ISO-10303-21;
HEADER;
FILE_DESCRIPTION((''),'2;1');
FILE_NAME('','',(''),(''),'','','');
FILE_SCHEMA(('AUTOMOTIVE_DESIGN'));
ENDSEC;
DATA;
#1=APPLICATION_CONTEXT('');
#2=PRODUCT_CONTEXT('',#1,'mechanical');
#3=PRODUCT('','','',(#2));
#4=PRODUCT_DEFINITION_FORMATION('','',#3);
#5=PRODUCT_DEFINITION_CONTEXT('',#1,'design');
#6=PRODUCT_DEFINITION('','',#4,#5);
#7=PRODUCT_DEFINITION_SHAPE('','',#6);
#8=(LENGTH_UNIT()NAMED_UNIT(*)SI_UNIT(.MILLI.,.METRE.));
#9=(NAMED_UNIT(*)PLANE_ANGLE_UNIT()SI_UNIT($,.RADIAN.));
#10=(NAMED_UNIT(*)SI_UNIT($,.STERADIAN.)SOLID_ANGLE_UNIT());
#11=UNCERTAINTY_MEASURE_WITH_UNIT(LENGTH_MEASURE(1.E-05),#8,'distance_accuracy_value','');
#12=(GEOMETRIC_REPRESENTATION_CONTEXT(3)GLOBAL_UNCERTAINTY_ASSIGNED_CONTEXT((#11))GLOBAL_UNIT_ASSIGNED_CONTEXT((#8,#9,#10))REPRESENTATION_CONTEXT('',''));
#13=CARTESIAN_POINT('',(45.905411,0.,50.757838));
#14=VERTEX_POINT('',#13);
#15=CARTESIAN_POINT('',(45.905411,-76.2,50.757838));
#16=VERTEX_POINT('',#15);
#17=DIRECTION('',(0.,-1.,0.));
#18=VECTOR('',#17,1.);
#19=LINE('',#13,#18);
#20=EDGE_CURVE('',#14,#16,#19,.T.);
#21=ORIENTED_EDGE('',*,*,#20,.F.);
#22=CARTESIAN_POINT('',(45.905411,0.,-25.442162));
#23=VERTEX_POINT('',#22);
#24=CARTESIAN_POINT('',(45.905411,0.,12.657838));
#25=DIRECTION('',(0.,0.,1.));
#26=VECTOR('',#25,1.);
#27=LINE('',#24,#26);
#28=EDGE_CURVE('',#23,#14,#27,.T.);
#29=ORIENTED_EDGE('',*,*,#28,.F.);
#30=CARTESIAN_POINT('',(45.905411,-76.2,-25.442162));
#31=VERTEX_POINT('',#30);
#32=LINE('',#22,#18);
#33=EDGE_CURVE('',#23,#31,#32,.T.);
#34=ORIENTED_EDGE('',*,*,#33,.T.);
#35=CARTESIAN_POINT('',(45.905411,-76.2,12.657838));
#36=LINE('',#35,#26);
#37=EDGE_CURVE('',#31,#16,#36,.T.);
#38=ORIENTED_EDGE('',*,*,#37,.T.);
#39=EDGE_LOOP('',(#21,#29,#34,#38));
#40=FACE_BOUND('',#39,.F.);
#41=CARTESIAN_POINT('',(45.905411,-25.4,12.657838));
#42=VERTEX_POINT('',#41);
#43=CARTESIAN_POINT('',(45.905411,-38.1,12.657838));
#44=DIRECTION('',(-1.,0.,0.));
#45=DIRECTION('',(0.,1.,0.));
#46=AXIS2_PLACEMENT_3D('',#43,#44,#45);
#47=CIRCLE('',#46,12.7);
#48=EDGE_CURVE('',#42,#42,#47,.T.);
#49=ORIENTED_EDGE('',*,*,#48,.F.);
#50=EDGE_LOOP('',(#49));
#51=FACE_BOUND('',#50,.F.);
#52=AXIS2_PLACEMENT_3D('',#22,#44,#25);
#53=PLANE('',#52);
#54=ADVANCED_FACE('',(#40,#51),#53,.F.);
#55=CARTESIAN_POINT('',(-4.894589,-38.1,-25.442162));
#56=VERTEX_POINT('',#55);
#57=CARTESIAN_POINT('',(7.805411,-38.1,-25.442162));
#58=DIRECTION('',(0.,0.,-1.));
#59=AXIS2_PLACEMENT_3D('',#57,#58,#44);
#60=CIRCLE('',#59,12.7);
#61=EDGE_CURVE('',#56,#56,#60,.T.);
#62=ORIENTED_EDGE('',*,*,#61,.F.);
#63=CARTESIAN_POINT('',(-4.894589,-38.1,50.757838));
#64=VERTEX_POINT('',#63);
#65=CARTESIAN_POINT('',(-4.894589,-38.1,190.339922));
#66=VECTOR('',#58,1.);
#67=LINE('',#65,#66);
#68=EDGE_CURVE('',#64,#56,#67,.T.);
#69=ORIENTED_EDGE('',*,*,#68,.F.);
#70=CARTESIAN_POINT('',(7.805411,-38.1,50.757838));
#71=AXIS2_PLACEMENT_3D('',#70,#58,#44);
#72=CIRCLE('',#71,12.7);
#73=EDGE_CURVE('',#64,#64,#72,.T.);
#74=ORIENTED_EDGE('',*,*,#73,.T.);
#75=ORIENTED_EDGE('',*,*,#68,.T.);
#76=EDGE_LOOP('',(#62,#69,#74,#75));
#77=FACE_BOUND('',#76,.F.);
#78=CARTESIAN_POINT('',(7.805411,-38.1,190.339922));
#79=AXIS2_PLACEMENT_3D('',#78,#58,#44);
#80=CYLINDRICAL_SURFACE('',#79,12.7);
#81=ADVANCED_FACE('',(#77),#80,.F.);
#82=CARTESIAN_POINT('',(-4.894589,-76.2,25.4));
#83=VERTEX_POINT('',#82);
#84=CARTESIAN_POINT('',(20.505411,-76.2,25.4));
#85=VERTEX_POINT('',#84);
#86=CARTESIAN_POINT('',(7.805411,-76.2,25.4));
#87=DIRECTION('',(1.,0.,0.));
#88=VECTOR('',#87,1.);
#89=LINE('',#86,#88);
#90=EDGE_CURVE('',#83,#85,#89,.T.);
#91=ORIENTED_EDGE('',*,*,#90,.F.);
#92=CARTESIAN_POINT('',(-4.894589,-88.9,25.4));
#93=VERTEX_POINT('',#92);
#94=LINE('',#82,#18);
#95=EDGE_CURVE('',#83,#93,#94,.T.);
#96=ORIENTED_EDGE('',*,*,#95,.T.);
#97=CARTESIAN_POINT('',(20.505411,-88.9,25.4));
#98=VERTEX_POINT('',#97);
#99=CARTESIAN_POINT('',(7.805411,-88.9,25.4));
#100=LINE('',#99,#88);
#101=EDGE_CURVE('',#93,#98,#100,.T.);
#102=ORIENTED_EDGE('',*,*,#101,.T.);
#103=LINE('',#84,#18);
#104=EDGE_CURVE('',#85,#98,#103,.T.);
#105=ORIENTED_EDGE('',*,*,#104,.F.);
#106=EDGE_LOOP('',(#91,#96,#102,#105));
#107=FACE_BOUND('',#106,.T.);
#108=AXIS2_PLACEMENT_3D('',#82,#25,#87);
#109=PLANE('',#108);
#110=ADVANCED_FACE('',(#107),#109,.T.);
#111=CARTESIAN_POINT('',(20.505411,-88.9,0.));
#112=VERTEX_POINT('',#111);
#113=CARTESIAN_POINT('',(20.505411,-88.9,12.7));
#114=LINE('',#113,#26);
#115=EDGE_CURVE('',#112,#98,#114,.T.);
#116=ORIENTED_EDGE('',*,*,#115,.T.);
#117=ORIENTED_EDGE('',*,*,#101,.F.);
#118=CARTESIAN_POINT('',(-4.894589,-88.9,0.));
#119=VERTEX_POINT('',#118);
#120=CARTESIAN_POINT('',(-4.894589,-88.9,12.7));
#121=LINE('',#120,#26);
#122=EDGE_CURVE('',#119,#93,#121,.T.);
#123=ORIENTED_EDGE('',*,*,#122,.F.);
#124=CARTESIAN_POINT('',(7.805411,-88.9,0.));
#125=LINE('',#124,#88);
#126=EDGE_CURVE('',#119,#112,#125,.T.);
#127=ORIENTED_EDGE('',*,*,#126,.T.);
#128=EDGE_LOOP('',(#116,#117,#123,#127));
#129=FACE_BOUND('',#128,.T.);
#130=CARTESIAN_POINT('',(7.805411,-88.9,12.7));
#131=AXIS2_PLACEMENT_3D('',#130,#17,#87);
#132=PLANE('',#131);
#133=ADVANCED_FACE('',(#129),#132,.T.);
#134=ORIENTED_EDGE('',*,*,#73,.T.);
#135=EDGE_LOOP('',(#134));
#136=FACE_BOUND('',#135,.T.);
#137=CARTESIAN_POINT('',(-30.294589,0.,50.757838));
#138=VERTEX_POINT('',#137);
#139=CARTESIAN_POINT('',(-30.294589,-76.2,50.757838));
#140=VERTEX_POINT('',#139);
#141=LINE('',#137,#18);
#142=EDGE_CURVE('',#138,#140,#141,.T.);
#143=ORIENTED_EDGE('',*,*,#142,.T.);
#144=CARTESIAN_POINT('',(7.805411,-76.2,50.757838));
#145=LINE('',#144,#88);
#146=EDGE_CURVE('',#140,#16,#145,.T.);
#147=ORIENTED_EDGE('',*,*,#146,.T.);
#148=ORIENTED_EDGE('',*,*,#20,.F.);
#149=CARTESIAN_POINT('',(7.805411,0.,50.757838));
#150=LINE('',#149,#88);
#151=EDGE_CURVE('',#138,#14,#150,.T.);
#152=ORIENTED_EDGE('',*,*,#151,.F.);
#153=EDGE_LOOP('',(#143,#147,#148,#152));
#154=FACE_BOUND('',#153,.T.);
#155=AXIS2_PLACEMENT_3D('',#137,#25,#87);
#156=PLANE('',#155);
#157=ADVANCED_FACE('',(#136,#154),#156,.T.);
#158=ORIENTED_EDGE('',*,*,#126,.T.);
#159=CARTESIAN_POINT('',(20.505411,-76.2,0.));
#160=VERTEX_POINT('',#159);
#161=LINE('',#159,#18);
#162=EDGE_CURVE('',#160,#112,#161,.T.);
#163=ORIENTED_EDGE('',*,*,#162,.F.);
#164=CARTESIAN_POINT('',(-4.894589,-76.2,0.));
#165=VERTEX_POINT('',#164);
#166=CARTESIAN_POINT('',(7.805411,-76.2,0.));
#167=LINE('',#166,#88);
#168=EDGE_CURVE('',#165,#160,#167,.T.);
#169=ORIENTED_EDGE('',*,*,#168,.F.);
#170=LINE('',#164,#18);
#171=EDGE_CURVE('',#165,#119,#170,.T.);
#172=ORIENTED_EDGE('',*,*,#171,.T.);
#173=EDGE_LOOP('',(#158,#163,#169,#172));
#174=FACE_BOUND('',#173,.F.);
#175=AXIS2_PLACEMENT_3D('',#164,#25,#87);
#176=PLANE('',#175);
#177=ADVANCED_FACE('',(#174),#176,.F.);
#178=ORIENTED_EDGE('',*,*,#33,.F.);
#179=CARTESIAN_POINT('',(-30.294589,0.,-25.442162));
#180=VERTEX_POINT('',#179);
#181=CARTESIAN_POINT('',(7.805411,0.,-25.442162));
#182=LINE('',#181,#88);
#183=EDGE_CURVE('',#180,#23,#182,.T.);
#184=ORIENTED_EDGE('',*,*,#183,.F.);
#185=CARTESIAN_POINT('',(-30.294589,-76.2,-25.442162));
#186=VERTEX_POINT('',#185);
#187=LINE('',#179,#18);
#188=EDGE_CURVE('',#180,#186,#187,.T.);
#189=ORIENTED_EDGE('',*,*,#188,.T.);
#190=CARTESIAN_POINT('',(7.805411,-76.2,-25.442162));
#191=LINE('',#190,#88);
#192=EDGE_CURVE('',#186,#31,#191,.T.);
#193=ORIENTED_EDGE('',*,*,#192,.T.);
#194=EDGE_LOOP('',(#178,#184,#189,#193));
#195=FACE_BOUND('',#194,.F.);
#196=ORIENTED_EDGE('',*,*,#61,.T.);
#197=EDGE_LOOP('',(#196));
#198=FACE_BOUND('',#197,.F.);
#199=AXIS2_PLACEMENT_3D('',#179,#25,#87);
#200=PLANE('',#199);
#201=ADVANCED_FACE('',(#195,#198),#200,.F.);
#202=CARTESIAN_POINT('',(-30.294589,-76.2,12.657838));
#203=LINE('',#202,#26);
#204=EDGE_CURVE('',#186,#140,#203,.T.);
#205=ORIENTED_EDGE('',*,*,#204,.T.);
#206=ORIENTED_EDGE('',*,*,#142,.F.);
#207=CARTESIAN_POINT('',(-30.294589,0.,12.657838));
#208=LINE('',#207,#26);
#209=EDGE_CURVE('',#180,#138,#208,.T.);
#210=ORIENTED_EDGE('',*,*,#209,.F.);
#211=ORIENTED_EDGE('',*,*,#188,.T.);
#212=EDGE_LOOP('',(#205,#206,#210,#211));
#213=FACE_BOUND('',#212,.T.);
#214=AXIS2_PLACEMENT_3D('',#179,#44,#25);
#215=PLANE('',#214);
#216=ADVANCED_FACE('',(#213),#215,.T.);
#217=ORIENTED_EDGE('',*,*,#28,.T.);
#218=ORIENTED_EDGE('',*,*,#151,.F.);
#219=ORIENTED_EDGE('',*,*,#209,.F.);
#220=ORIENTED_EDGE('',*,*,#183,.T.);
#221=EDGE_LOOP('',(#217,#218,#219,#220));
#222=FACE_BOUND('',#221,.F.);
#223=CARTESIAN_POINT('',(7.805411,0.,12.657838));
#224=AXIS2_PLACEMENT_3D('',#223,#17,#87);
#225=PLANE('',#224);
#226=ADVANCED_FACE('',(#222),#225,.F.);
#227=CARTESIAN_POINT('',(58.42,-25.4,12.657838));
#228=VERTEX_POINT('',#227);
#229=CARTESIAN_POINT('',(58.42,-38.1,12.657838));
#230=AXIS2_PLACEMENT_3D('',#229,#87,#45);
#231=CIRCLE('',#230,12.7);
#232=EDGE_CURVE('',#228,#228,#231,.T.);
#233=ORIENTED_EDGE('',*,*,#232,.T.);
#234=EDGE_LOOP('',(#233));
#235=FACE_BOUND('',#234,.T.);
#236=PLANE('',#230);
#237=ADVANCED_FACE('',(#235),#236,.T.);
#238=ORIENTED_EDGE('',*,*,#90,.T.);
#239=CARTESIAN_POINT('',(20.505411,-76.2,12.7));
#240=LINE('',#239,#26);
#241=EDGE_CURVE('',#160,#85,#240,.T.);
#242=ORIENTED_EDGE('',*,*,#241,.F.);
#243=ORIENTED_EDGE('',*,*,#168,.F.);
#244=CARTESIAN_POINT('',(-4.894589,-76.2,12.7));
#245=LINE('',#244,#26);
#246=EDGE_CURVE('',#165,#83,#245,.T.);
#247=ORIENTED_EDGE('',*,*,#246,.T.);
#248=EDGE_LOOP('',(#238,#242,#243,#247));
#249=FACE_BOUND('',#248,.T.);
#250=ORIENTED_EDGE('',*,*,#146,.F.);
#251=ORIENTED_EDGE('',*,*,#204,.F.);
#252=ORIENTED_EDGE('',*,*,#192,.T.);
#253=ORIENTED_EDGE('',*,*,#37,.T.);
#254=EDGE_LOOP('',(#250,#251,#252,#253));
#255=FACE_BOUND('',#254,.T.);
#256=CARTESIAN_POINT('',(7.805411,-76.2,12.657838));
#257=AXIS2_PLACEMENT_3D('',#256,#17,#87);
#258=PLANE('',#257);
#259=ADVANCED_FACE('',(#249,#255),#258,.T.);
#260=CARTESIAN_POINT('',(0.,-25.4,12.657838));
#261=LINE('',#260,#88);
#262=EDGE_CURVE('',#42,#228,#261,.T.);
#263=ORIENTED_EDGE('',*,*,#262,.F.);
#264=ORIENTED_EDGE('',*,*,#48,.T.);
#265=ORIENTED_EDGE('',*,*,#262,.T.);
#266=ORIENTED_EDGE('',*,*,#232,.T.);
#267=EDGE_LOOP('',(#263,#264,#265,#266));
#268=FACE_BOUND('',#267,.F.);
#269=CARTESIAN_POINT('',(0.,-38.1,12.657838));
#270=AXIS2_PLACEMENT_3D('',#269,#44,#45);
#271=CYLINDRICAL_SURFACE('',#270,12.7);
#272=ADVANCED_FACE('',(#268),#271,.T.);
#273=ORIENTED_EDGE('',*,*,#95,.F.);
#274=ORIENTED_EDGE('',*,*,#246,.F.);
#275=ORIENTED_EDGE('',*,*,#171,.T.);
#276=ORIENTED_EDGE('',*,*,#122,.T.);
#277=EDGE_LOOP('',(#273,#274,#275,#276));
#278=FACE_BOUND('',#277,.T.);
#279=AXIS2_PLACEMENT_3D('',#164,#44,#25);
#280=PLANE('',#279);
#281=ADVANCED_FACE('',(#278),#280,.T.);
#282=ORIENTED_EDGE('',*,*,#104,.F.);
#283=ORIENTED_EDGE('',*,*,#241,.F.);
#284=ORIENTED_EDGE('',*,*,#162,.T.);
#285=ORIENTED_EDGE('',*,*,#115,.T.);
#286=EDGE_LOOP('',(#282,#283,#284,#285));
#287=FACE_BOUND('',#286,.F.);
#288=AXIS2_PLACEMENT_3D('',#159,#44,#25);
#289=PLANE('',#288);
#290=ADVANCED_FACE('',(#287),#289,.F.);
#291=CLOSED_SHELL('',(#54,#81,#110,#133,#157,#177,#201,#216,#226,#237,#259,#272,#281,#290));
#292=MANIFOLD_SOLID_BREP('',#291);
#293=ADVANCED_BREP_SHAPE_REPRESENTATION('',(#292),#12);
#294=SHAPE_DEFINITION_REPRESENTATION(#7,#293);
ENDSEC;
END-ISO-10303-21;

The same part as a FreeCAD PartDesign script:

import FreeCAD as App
import Part
import Sketcher

V = App.Vector
Q = App.Units.Quantity

doc = App.newDocument("Part")
params = doc.addObject("Spreadsheet::Sheet", "Params")
for row, (alias, value) in enumerate([
    ("sketch1_width", "3 in"),
    ("pad1_length", "3 in"),
    ("sketch2_diameter", "1 in"),
    ("pad2_length", "2.3 in"),
    ("sketch3_diameter", "1 in"),
    ("hole_diameter", "1 in"),
    ("sketch4_width", "1 in"),
    ("pad3_length", "0.5 in"),
], start=1):
    params.set(f"A{row}", alias)
    params.set(f"B{row}", "=" + value)
    params.setAlias(f"B{row}", alias)

body = doc.addObject("PartDesign::Body", "Body")

sketch1 = body.newObject("Sketcher::SketchObject", "Sketch")
sketch1.AttachmentSupport = (doc.getObject("XZ_Plane"), [""])
sketch1.MapMode = "FlatFace"
sketch1.addGeometry([
    Part.LineSegment(V(-30, 51, 0), V(-30, -25, 0)),
    Part.LineSegment(V(-30, -25, 0), V(46, -25, 0)),
    Part.LineSegment(V(46, -25, 0), V(46, 51, 0)),
    Part.LineSegment(V(46, 51, 0), V(-30, 51, 0)),
], False)
sketch1.addConstraint([
    Sketcher.Constraint("Coincident", 0, 2, 1, 1),
    Sketcher.Constraint("Coincident", 1, 2, 2, 1),
    Sketcher.Constraint("Coincident", 2, 2, 3, 1),
    Sketcher.Constraint("Coincident", 3, 2, 0, 1),
    Sketcher.Constraint("Vertical", 0),
    Sketcher.Constraint("Horizontal", 1),
    Sketcher.Constraint("Vertical", 2),
    Sketcher.Constraint("Horizontal", 3),
    Sketcher.Constraint("Equal", 3, 0),
    Sketcher.Constraint("DistanceX", 1, 1, 1, 2, Q("3 in")),
    Sketcher.Constraint("DistanceX", 0, 2, -1, 1, Q("30.294589 mm")),
    Sketcher.Constraint("DistanceY", 0, 2, -1, 1, Q("25.442162 mm")),
])
sketch1.setExpression("Constraints[9]", "Params.sketch1_width")
pad1 = body.newObject("PartDesign::Pad", "Pad")
pad1.Profile = sketch1
pad1.setExpression("Length", "Params.pad1_length")

sketch2 = body.newObject("Sketcher::SketchObject", "Sketch001")
sketch2.AttachmentSupport = (doc.getObject("YZ_Plane"), [""])
sketch2.MapMode = "FlatFace"
sketch2.addGeometry(Part.Circle(V(-38, 13, 0), V(0, 0, 1), 13), False)
sketch2.addConstraint([
    Sketcher.Constraint("Diameter", 0, Q("1 in")),
    Sketcher.Constraint("DistanceX", 0, 3, -1, 1, Q("1.5 in")),
    Sketcher.Constraint("DistanceY", -1, 1, 0, 3, Q("12.657838 mm")),
])
sketch2.setExpression("Constraints[0]", "Params.sketch2_diameter")
pad2 = body.newObject("PartDesign::Pad", "Pad001")
pad2.Profile = sketch2
pad2.setExpression("Length", "Params.pad2_length")

sketch3 = body.newObject("Sketcher::SketchObject", "Sketch002")
sketch3.AttachmentSupport = (doc.getObject("XY_Plane"), [""])
sketch3.MapMode = "FlatFace"
sketch3.AttachmentOffset = App.Placement(V(0, 0, 50.757838), App.Rotation())
sketch3.addGeometry(Part.Circle(V(8, -38, 0), V(0, 0, 1), 13), False)
sketch3.addConstraint([
    Sketcher.Constraint("Diameter", 0, Q("1 in")),
    Sketcher.Constraint("DistanceY", 0, 3, -1, 1, Q("1.5 in")),
    Sketcher.Constraint("DistanceX", -1, 1, 0, 3, Q("7.805411 mm")),
])
sketch3.setExpression("Constraints[0]", "Params.sketch3_diameter")
doc.recompute()
hole = body.newObject("PartDesign::Hole", "Hole")
hole.Profile = sketch3
hole.ThreadType = "None"
hole.setExpression("Diameter", "Params.hole_diameter")
hole.DepthType = "ThroughAll"

sketch4 = body.newObject("Sketcher::SketchObject", "Sketch003")
sketch4.AttachmentSupport = (doc.getObject("XZ_Plane"), [""])
sketch4.MapMode = "FlatFace"
sketch4.AttachmentOffset = App.Placement(V(0, 0, 3 * 25.4), App.Rotation())
sketch4.addGeometry([
    Part.LineSegment(V(-5, 25, 0), V(-5, 0, 0)),
    Part.LineSegment(V(-5, 0, 0), V(21, 0, 0)),
    Part.LineSegment(V(21, 0, 0), V(21, 25, 0)),
    Part.LineSegment(V(21, 25, 0), V(-5, 25, 0)),
], False)
sketch4.addConstraint([
    Sketcher.Constraint("Coincident", 0, 2, 1, 1),
    Sketcher.Constraint("Coincident", 1, 2, 2, 1),
    Sketcher.Constraint("Coincident", 2, 2, 3, 1),
    Sketcher.Constraint("Coincident", 3, 2, 0, 1),
    Sketcher.Constraint("Vertical", 0),
    Sketcher.Constraint("Horizontal", 1),
    Sketcher.Constraint("Vertical", 2),
    Sketcher.Constraint("Horizontal", 3),
    Sketcher.Constraint("PointOnObject", 0, 2, -1),
    Sketcher.Constraint("Equal", 3, 0),
    Sketcher.Constraint("DistanceX", 1, 1, 1, 2, Q("1 in")),
    Sketcher.Constraint("DistanceX", 0, 2, -1, 1, Q("4.894589 mm")),
])
sketch4.setExpression("Constraints[10]", "Params.sketch4_width")
pad3 = body.newObject("PartDesign::Pad", "Pad002")
pad3.Profile = sketch4
pad3.setExpression("Length", "Params.pad3_length")

doc.recompute()
